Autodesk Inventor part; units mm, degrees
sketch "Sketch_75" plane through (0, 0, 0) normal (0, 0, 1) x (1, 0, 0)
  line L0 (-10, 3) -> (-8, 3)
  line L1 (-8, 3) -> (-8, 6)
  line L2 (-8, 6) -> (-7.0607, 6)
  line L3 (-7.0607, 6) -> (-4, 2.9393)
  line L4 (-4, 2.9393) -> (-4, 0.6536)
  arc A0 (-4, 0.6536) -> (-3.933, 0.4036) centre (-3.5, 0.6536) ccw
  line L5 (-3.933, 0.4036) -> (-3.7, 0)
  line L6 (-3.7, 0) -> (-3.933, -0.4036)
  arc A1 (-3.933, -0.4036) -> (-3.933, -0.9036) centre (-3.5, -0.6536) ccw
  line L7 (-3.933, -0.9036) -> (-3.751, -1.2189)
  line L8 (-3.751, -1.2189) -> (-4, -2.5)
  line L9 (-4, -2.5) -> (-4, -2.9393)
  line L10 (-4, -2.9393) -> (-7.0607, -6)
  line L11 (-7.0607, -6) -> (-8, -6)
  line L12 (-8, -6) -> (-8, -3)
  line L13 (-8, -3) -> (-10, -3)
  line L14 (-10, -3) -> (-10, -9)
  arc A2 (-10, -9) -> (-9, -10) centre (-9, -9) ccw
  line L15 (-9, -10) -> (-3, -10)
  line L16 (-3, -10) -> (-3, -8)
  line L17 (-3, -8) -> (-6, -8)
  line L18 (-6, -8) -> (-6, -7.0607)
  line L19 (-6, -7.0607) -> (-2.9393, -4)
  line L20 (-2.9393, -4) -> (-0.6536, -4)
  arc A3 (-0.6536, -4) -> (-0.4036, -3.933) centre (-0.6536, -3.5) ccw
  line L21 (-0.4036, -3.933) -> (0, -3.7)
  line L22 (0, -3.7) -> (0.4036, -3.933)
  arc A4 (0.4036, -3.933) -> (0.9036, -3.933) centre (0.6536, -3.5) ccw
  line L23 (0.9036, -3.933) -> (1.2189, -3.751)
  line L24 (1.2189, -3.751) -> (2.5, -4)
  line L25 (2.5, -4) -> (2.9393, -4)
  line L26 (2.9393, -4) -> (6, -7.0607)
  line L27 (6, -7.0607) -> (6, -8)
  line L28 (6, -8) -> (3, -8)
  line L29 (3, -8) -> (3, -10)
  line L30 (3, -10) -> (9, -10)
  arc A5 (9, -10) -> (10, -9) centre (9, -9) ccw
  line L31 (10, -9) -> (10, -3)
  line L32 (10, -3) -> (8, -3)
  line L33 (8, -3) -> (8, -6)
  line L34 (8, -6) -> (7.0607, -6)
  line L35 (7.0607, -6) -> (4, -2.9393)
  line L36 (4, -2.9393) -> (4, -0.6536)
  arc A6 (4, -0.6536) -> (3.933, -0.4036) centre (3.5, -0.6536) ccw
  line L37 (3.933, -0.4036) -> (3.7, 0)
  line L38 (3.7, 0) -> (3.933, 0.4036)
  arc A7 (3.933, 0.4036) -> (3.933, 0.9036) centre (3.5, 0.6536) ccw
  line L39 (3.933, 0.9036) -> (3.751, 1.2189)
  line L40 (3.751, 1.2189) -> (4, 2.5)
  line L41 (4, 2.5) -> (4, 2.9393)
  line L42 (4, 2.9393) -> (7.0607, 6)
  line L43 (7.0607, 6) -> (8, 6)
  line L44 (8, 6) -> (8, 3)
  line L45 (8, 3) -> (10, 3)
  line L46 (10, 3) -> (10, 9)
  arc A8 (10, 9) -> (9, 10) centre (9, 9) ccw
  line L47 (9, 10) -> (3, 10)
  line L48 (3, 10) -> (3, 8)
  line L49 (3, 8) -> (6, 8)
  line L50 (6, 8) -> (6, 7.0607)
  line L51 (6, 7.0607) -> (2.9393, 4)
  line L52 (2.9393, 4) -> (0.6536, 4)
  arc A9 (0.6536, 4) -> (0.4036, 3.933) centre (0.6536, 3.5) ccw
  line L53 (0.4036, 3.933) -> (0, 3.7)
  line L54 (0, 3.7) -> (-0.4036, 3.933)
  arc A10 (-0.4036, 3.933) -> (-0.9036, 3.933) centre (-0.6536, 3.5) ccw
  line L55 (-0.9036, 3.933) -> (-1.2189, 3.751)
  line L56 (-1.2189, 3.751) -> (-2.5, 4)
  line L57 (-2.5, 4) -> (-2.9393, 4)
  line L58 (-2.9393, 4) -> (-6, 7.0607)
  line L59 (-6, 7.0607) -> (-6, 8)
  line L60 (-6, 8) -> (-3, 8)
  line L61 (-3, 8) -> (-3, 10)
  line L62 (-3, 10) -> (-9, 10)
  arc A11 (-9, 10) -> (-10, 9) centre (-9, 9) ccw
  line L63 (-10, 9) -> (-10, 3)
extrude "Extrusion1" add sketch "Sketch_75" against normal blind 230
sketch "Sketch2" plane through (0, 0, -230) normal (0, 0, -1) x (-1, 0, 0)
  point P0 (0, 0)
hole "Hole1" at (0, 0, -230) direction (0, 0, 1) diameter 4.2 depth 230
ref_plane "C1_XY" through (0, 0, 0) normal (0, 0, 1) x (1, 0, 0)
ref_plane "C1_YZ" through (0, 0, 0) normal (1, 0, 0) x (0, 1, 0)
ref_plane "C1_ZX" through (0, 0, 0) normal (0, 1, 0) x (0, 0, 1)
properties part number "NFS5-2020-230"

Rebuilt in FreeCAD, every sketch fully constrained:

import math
import FreeCAD as App
import Part
import Sketcher
Q = App.Units.Quantity

doc = App.newDocument("Part")
params = doc.addObject("Spreadsheet::Sheet", "Params")
for row, (alias, value) in enumerate([
    ("sketch1_radius", "1 mm"),
    ("sketch1_radius2", "0.5 mm"),
    ("sketch1_width", "2 mm"),
    ("sketch1_width2", "6 mm"),
    ("sketch1_width3", "3 mm"),
    ("pad1_length", "230 mm"),
    ("sketch2_diameter", "4.2 mm"),
    ("hole_diameter", "4.2 mm"),
    ("hole_depth", "230 mm"),
], start=1):
    params.set(f"A{row}", alias)
    params.set(f"B{row}", "=" + value)
    params.setAlias(f"B{row}", alias)

body = doc.addObject("PartDesign::Body", "Body")

# Sketch on XY plane
sketch1 = doc.addObject("Sketcher::SketchObject", "Sketch")
body.addObject(sketch1)
sketch1.AttachmentSupport = (doc.XY_Plane, [""])
sketch1.MapMode = "FlatFace"
sketch1.addGeometry([
    Part.LineSegment(App.Vector(-10, 9, 0), App.Vector(-10, 3, 0)),  # 0
    Part.LineSegment(App.Vector(-10, 3, 0), App.Vector(-8, 3, 0)),  # 1
    Part.LineSegment(App.Vector(-8, 3, 0), App.Vector(-8, 6, 0)),  # 2
    Part.LineSegment(App.Vector(-8, 6, 0), App.Vector(-7.0607, 6, 0)),  # 3
    Part.LineSegment(App.Vector(-7.0607, 6, 0), App.Vector(-4, 2.9393, 0)),  # 4
    Part.LineSegment(App.Vector(-4, 2.9393, 0), App.Vector(-4, 0.6536, 0)),  # 5
    Part.ArcOfCircle(Part.Circle(App.Vector(-3.5, 0.6536, 0), App.Vector(0, 0, 1), 0.5), math.radians(180), math.radians(210.000728)),  # 6
    Part.LineSegment(App.Vector(-3.933, 0.4036, 0), App.Vector(-3.7, 0, 0)),  # 7
    Part.LineSegment(App.Vector(-3.7, 0, 0), App.Vector(-3.933, -0.4036, 0)),  # 8
    Part.ArcOfCircle(Part.Circle(App.Vector(-3.5, -0.6536, 0), App.Vector(0, 0, 1), 0.499989), math.radians(149.999272), math.radians(210.000728)),  # 9
    Part.LineSegment(App.Vector(-3.933, -0.9036, 0), App.Vector(-3.751, -1.2189, 0)),  # 10
    Part.LineSegment(App.Vector(-3.751, -1.2189, 0), App.Vector(-4, -2.5, 0)),  # 11
    Part.LineSegment(App.Vector(-4, -2.5, 0), App.Vector(-4, -2.9393, 0)),  # 12
    Part.LineSegment(App.Vector(-4, -2.9393, 0), App.Vector(-7.0607, -6, 0)),  # 13
    Part.LineSegment(App.Vector(-7.0607, -6, 0), App.Vector(-8, -6, 0)),  # 14
    Part.LineSegment(App.Vector(-8, -6, 0), App.Vector(-8, -3, 0)),  # 15
    Part.LineSegment(App.Vector(-8, -3, 0), App.Vector(-10, -3, 0)),  # 16
    Part.LineSegment(App.Vector(-10, -3, 0), App.Vector(-10, -9, 0)),  # 17
    Part.ArcOfCircle(Part.Circle(App.Vector(-9, -9, 0), App.Vector(0, 0, 1), 1), math.radians(180), math.radians(270)),  # 18
    Part.LineSegment(App.Vector(-9, -10, 0), App.Vector(-3, -10, 0)),  # 19
    Part.LineSegment(App.Vector(-3, -10, 0), App.Vector(-3, -8, 0)),  # 20
    Part.LineSegment(App.Vector(-3, -8, 0), App.Vector(-6, -8, 0)),  # 21
    Part.LineSegment(App.Vector(-6, -8, 0), App.Vector(-6, -7.0607, 0)),  # 22
    Part.LineSegment(App.Vector(-6, -7.0607, 0), App.Vector(-2.9393, -4, 0)),  # 23
    Part.LineSegment(App.Vector(-2.9393, -4, 0), App.Vector(-0.6536, -4, 0)),  # 24
    Part.ArcOfCircle(Part.Circle(App.Vector(-0.6536, -3.5, 0), App.Vector(0, 0, 1), 0.5), math.radians(-90), math.radians(-59.999272)),  # 25
    Part.LineSegment(App.Vector(-0.4036, -3.933, 0), App.Vector(0, -3.7, 0)),  # 26
    Part.LineSegment(App.Vector(0, -3.7, 0), App.Vector(0.4036, -3.933, 0)),  # 27
    Part.ArcOfCircle(Part.Circle(App.Vector(0.6536, -3.5, 0), App.Vector(0, 0, 1), 0.499989), math.radians(-120.000728), math.radians(-59.999272)),  # 28
    Part.LineSegment(App.Vector(0.9036, -3.933, 0), App.Vector(1.2189, -3.751, 0)),  # 29
    Part.LineSegment(App.Vector(1.2189, -3.751, 0), App.Vector(2.5, -4, 0)),  # 30
    Part.LineSegment(App.Vector(2.5, -4, 0), App.Vector(2.9393, -4, 0)),  # 31
    Part.LineSegment(App.Vector(2.9393, -4, 0), App.Vector(6, -7.0607, 0)),  # 32
    Part.LineSegment(App.Vector(6, -7.0607, 0), App.Vector(6, -8, 0)),  # 33
    Part.LineSegment(App.Vector(6, -8, 0), App.Vector(3, -8, 0)),  # 34
    Part.LineSegment(App.Vector(3, -8, 0), App.Vector(3, -10, 0)),  # 35
    Part.LineSegment(App.Vector(3, -10, 0), App.Vector(9, -10, 0)),  # 36
    Part.ArcOfCircle(Part.Circle(App.Vector(9, -9, 0), App.Vector(0, 0, 1), 1), math.radians(-90), math.radians(0)),  # 37
    Part.LineSegment(App.Vector(10, -9, 0), App.Vector(10, -3, 0)),  # 38
    Part.LineSegment(App.Vector(10, -3, 0), App.Vector(8, -3, 0)),  # 39
    Part.LineSegment(App.Vector(8, -3, 0), App.Vector(8, -6, 0)),  # 40
    Part.LineSegment(App.Vector(8, -6, 0), App.Vector(7.0607, -6, 0)),  # 41
    Part.LineSegment(App.Vector(7.0607, -6, 0), App.Vector(4, -2.9393, 0)),  # 42
    Part.LineSegment(App.Vector(4, -2.9393, 0), App.Vector(4, -0.6536, 0)),  # 43
    Part.ArcOfCircle(Part.Circle(App.Vector(3.5, -0.6536, 0), App.Vector(0, 0, 1), 0.5), math.radians(0), math.radians(30.000728)),  # 44
    Part.LineSegment(App.Vector(3.933, -0.4036, 0), App.Vector(3.7, 0, 0)),  # 45
    Part.LineSegment(App.Vector(3.7, 0, 0), App.Vector(3.933, 0.4036, 0)),  # 46
    Part.ArcOfCircle(Part.Circle(App.Vector(3.5, 0.6536, 0), App.Vector(0, 0, 1), 0.499989), math.radians(-30.000728), math.radians(30.000728)),  # 47
    Part.LineSegment(App.Vector(3.933, 0.9036, 0), App.Vector(3.751, 1.2189, 0)),  # 48
    Part.LineSegment(App.Vector(3.751, 1.2189, 0), App.Vector(4, 2.5, 0)),  # 49
    Part.LineSegment(App.Vector(4, 2.5, 0), App.Vector(4, 2.9393, 0)),  # 50
    Part.LineSegment(App.Vector(4, 2.9393, 0), App.Vector(7.0607, 6, 0)),  # 51
    Part.LineSegment(App.Vector(7.0607, 6, 0), App.Vector(8, 6, 0)),  # 52
    Part.LineSegment(App.Vector(8, 6, 0), App.Vector(8, 3, 0)),  # 53
    Part.LineSegment(App.Vector(8, 3, 0), App.Vector(10, 3, 0)),  # 54
    Part.LineSegment(App.Vector(10, 3, 0), App.Vector(10, 9, 0)),  # 55
    Part.ArcOfCircle(Part.Circle(App.Vector(9, 9, 0), App.Vector(0, 0, 1), 1), math.radians(0), math.radians(90)),  # 56
    Part.LineSegment(App.Vector(9, 10, 0), App.Vector(3, 10, 0)),  # 57
    Part.LineSegment(App.Vector(3, 10, 0), App.Vector(3, 8, 0)),  # 58
    Part.LineSegment(App.Vector(3, 8, 0), App.Vector(6, 8, 0)),  # 59
    Part.LineSegment(App.Vector(6, 8, 0), App.Vector(6, 7.0607, 0)),  # 60
    Part.LineSegment(App.Vector(6, 7.0607, 0), App.Vector(2.9393, 4, 0)),  # 61
    Part.LineSegment(App.Vector(2.9393, 4, 0), App.Vector(0.6536, 4, 0)),  # 62
    Part.ArcOfCircle(Part.Circle(App.Vector(0.6536, 3.5, 0), App.Vector(0, 0, 1), 0.5), math.radians(90), math.radians(120.000728)),  # 63
    Part.LineSegment(App.Vector(0.4036, 3.933, 0), App.Vector(0, 3.7, 0)),  # 64
    Part.LineSegment(App.Vector(0, 3.7, 0), App.Vector(-0.4036, 3.933, 0)),  # 65
    Part.ArcOfCircle(Part.Circle(App.Vector(-0.6536, 3.5, 0), App.Vector(0, 0, 1), 0.499989), math.radians(59.999272), math.radians(120.000728)),  # 66
    Part.LineSegment(App.Vector(-0.9036, 3.933, 0), App.Vector(-1.2189, 3.751, 0)),  # 67
    Part.LineSegment(App.Vector(-1.2189, 3.751, 0), App.Vector(-2.5, 4, 0)),  # 68
    Part.LineSegment(App.Vector(-2.5, 4, 0), App.Vector(-2.9393, 4, 0)),  # 69
    Part.LineSegment(App.Vector(-2.9393, 4, 0), App.Vector(-6, 7.0607, 0)),  # 70
    Part.LineSegment(App.Vector(-6, 7.0607, 0), App.Vector(-6, 8, 0)),  # 71
    Part.LineSegment(App.Vector(-6, 8, 0), App.Vector(-3, 8, 0)),  # 72
    Part.LineSegment(App.Vector(-3, 8, 0), App.Vector(-3, 10, 0)),  # 73
    Part.LineSegment(App.Vector(-3, 10, 0), App.Vector(-9, 10, 0)),  # 74
    Part.ArcOfCircle(Part.Circle(App.Vector(-9, 9, 0), App.Vector(0, 0, 1), 1), math.radians(90), math.radians(180)),  # 75
], False)
sketch1.addConstraint([
    Sketcher.Constraint("Coincident", 0, 2, 1, 1),
    Sketcher.Constraint("Coincident", 1, 2, 2, 1),
    Sketcher.Constraint("Coincident", 2, 2, 3, 1),
    Sketcher.Constraint("Coincident", 3, 2, 4, 1),
    Sketcher.Constraint("Coincident", 4, 2, 5, 1),
    Sketcher.Constraint("Tangent", 5, 2, 6, 1),
    Sketcher.Constraint("Tangent", 6, 2, 7, 1),
    Sketcher.Constraint("Coincident", 7, 2, 8, 1),
    Sketcher.Constraint("Tangent", 8, 2, 9, 1),
    Sketcher.Constraint("Tangent", 9, 2, 10, 1),
    Sketcher.Constraint("Coincident", 10, 2, 11, 1),
    Sketcher.Constraint("Coincident", 11, 2, 12, 1),
    Sketcher.Constraint("Coincident", 12, 2, 13, 1),
    Sketcher.Constraint("Coincident", 13, 2, 14, 1),
    Sketcher.Constraint("Coincident", 14, 2, 15, 1),
    Sketcher.Constraint("Coincident", 15, 2, 16, 1),
    Sketcher.Constraint("Coincident", 16, 2, 17, 1),
    Sketcher.Constraint("Tangent", 17, 2, 18, 1),
    Sketcher.Constraint("Tangent", 18, 2, 19, 1),
    Sketcher.Constraint("Coincident", 19, 2, 20, 1),
    Sketcher.Constraint("Coincident", 20, 2, 21, 1),
    Sketcher.Constraint("Coincident", 21, 2, 22, 1),
    Sketcher.Constraint("Coincident", 22, 2, 23, 1),
    Sketcher.Constraint("Coincident", 23, 2, 24, 1),
    Sketcher.Constraint("Tangent", 24, 2, 25, 1),
    Sketcher.Constraint("Tangent", 25, 2, 26, 1),
    Sketcher.Constraint("Coincident", 26, 2, 27, 1),
    Sketcher.Constraint("Tangent", 27, 2, 28, 1),
    Sketcher.Constraint("Tangent", 28, 2, 29, 1),
    Sketcher.Constraint("Coincident", 29, 2, 30, 1),
    Sketcher.Constraint("Coincident", 30, 2, 31, 1),
    Sketcher.Constraint("Coincident", 31, 2, 32, 1),
    Sketcher.Constraint("Coincident", 32, 2, 33, 1),
    Sketcher.Constraint("Coincident", 33, 2, 34, 1),
    Sketcher.Constraint("Coincident", 34, 2, 35, 1),
    Sketcher.Constraint("Coincident", 35, 2, 36, 1),
    Sketcher.Constraint("Tangent", 36, 2, 37, 1),
    Sketcher.Constraint("Tangent", 37, 2, 38, 1),
    Sketcher.Constraint("Coincident", 38, 2, 39, 1),
    Sketcher.Constraint("Coincident", 39, 2, 40, 1),
    Sketcher.Constraint("Coincident", 40, 2, 41, 1),
    Sketcher.Constraint("Coincident", 41, 2, 42, 1),
    Sketcher.Constraint("Coincident", 42, 2, 43, 1),
    Sketcher.Constraint("Tangent", 43, 2, 44, 1),
    Sketcher.Constraint("Tangent", 44, 2, 45, 1),
    Sketcher.Constraint("Coincident", 45, 2, 46, 1),
    Sketcher.Constraint("Tangent", 46, 2, 47, 1),
    Sketcher.Constraint("Tangent", 47, 2, 48, 1),
    Sketcher.Constraint("Coincident", 48, 2, 49, 1),
    Sketcher.Constraint("Coincident", 49, 2, 50, 1),
    Sketcher.Constraint("Coincident", 50, 2, 51, 1),
    Sketcher.Constraint("Coincident", 51, 2, 52, 1),
    Sketcher.Constraint("Coincident", 52, 2, 53, 1),
    Sketcher.Constraint("Coincident", 53, 2, 54, 1),
    Sketcher.Constraint("Coincident", 54, 2, 55, 1),
    Sketcher.Constraint("Tangent", 55, 2, 56, 1),
    Sketcher.Constraint("Tangent", 56, 2, 57, 1),
    Sketcher.Constraint("Coincident", 57, 2, 58, 1),
    Sketcher.Constraint("Coincident", 58, 2, 59, 1),
    Sketcher.Constraint("Coincident", 59, 2, 60, 1),
    Sketcher.Constraint("Coincident", 60, 2, 61, 1),
    Sketcher.Constraint("Coincident", 61, 2, 62, 1),
    Sketcher.Constraint("Tangent", 62, 2, 63, 1),
    Sketcher.Constraint("Tangent", 63, 2, 64, 1),
    Sketcher.Constraint("Coincident", 64, 2, 65, 1),
    Sketcher.Constraint("Tangent", 65, 2, 66, 1),
    Sketcher.Constraint("Tangent", 66, 2, 67, 1),
    Sketcher.Constraint("Coincident", 67, 2, 68, 1),
    Sketcher.Constraint("Coincident", 68, 2, 69, 1),
    Sketcher.Constraint("Coincident", 69, 2, 70, 1),
    Sketcher.Constraint("Coincident", 70, 2, 71, 1),
    Sketcher.Constraint("Coincident", 71, 2, 72, 1),
    Sketcher.Constraint("Coincident", 72, 2, 73, 1),
    Sketcher.Constraint("Coincident", 73, 2, 74, 1),
    Sketcher.Constraint("Tangent", 74, 2, 75, 1),
    Sketcher.Constraint("Tangent", 75, 2, 0, 1),
    Sketcher.Constraint("Vertical", 0),
    Sketcher.Constraint("Horizontal", 1),
    Sketcher.Constraint("Vertical", 2),
    Sketcher.Constraint("Horizontal", 3),
    Sketcher.Constraint("Vertical", 5),
    Sketcher.Constraint("Vertical", 12),
    Sketcher.Constraint("Horizontal", 14),
    Sketcher.Constraint("Vertical", 15),
    Sketcher.Constraint("Horizontal", 16),
    Sketcher.Constraint("Vertical", 17),
    Sketcher.Constraint("Horizontal", 19),
    Sketcher.Constraint("Vertical", 20),
    Sketcher.Constraint("Horizontal", 21),
    Sketcher.Constraint("Vertical", 22),
    Sketcher.Constraint("Horizontal", 24),
    Sketcher.Constraint("Horizontal", 31),
    Sketcher.Constraint("Vertical", 33),
    Sketcher.Constraint("Horizontal", 34),
    Sketcher.Constraint("Vertical", 35),
    Sketcher.Constraint("Horizontal", 36),
    Sketcher.Constraint("Vertical", 38),
    Sketcher.Constraint("Horizontal", 39),
    Sketcher.Constraint("Vertical", 40),
    Sketcher.Constraint("Horizontal", 41),
    Sketcher.Constraint("Vertical", 43),
    Sketcher.Constraint("Vertical", 50),
    Sketcher.Constraint("Horizontal", 52),
    Sketcher.Constraint("Vertical", 53),
    Sketcher.Constraint("Horizontal", 54),
    Sketcher.Constraint("Vertical", 55),
    Sketcher.Constraint("Horizontal", 57),
    Sketcher.Constraint("Vertical", 58),
    Sketcher.Constraint("Horizontal", 59),
    Sketcher.Constraint("Vertical", 60),
    Sketcher.Constraint("Horizontal", 62),
    Sketcher.Constraint("Horizontal", 69),
    Sketcher.Constraint("Vertical", 71),
    Sketcher.Constraint("Horizontal", 72),
    Sketcher.Constraint("Vertical", 73),
    Sketcher.Constraint("Horizontal", 74),
    Sketcher.Constraint("Equal", 6, 9),
    Sketcher.Constraint("Equal", 9, 25),
    Sketcher.Constraint("Equal", 25, 28),
    Sketcher.Constraint("Equal", 18, 37),
    Sketcher.Constraint("Equal", 28, 44),
    Sketcher.Constraint("Equal", 44, 47),
    Sketcher.Constraint("Equal", 37, 56),
    Sketcher.Constraint("Equal", 47, 63),
    Sketcher.Constraint("Equal", 63, 66),
    Sketcher.Constraint("Equal", 56, 75),
    Sketcher.Constraint("Symmetric", 6, 3, 44, 3, -1, 1),
    Sketcher.Constraint("Symmetric", 9, 3, 47, 3, -1, 1),
    Sketcher.Constraint("Symmetric", 18, 3, 56, 3, -1, 1),
    Sketcher.Constraint("Symmetric", 25, 3, 63, 3, -1, 1),
    Sketcher.Constraint("Symmetric", 28, 3, 66, 3, -1, 1),
    Sketcher.Constraint("Symmetric", 37, 3, 75, 3, -1, 1),
    Sketcher.Constraint("Symmetric", 1, 2, 39, 2, -1, 1),
    Sketcher.Constraint("Symmetric", 3, 2, 41, 2, -1, 1),
    Sketcher.Constraint("Symmetric", 7, 2, 45, 2, -1, 1),
    Sketcher.Constraint("Symmetric", 10, 2, 48, 2, -1, 1),
    Sketcher.Constraint("Symmetric", 11, 2, 49, 2, -1, 1),
    Sketcher.Constraint("Symmetric", 13, 2, 51, 2, -1, 1),
    Sketcher.Constraint("Symmetric", 15, 2, 53, 2, -1, 1),
    Sketcher.Constraint("Symmetric", 20, 2, 58, 2, -1, 1),
    Sketcher.Constraint("Symmetric", 22, 2, 60, 2, -1, 1),
    Sketcher.Constraint("Symmetric", 26, 2, 64, 2, -1, 1),
    Sketcher.Constraint("Symmetric", 29, 2, 67, 2, -1, 1),
    Sketcher.Constraint("Symmetric", 30, 2, 68, 2, -1, 1),
    Sketcher.Constraint("Symmetric", 32, 2, 70, 2, -1, 1),
    Sketcher.Constraint("Symmetric", 34, 2, 72, 2, -1, 1),
    Sketcher.Constraint("Symmetric", 25, 3, 28, 3, -2),
    Sketcher.Constraint("Symmetric", 18, 3, 37, 3, -2),
    Sketcher.Constraint("Symmetric", 9, 3, 44, 3, -2),
    Sketcher.Constraint("Symmetric", 23, 2, 31, 2, -2),
    Sketcher.Constraint("Symmetric", 22, 2, 32, 2, -2),
    Sketcher.Constraint("Symmetric", 20, 2, 34, 2, -2),
    Sketcher.Constraint("Symmetric", 15, 2, 39, 2, -2),
    Sketcher.Constraint("Symmetric", 13, 2, 41, 2, -2),
    Sketcher.Constraint("Symmetric", 12, 2, 42, 2, -2),
    Sketcher.Constraint("PointOnObject", 7, 2, -1),
    Sketcher.Constraint("PointOnObject", 26, 2, -2),
    Sketcher.Constraint("Parallel", 7, 10),
    Sketcher.Constraint("Perpendicular", 4, 13),
    Sketcher.Constraint("Parallel", 13, 23),
    Sketcher.Constraint("Perpendicular", 10, 26),
    Sketcher.Constraint("Parallel", 26, 29),
    Sketcher.Constraint("Perpendicular", 11, 30),
    Sketcher.Constraint("Perpendicular", 23, 32),
    Sketcher.Constraint("Perpendicular", 42, 51),
    Sketcher.Constraint("Parallel", 51, 61),
    Sketcher.Constraint("Perpendicular", 61, 70),
    Sketcher.Constraint("Equal", 74, 0),
    Sketcher.Constraint("Equal", 72, 2),
    Sketcher.Constraint("Equal", 62, 5),
    Sketcher.Constraint("Equal", 69, 12),
    Sketcher.Constraint("Equal", 54, 20),
    Sketcher.Constraint("Equal", 52, 22),
    Sketcher.Constraint("Equal", 13, 23),
    Sketcher.Constraint("Equal", 8, 26),
    Sketcher.Constraint("Radius", 18, 1.0),
    Sketcher.Constraint("Radius", 6, 0.5),
    Sketcher.Constraint("DistanceX", 1, 1, 1, 2, 2.0),
    Sketcher.Constraint("DistanceX", 19, 1, 19, 2, 6.0),
    Sketcher.Constraint("DistanceX", 21, 2, 21, 1, 3.0),
    Sketcher.Constraint("Angle", 11, Q("-100.999 deg")),
    Sketcher.Constraint("DistanceX", 18, 3, -1, 1, 9.0),
    Sketcher.Constraint("DistanceX", 4, 2, -1, 1, 4.0),
    Sketcher.Constraint("DistanceX", 7, 2, -1, 1, 3.7),
    Sketcher.Constraint("DistanceY", 11, 2, -1, 1, 2.5),
    Sketcher.Constraint("Distance", 7, 0.466),
    Sketcher.Constraint("DistanceX", 3, 1, 3, 2, 0.9393),
])
sketch1.setExpression("Constraints[175]", "Params.sketch1_radius")
sketch1.setExpression("Constraints[176]", "Params.sketch1_radius2")
sketch1.setExpression("Constraints[177]", "Params.sketch1_width")
sketch1.setExpression("Constraints[178]", "Params.sketch1_width2")
sketch1.setExpression("Constraints[179]", "Params.sketch1_width3")
pad1 = doc.addObject("PartDesign::Pad", "Pad")
body.addObject(pad1)
pad1.Profile = sketch1
pad1.setExpression("Length", "Params.pad1_length")
pad1.Reversed = True

# Sketch on XY plane
sketch2 = doc.addObject("Sketcher::SketchObject", "Sketch001")
body.addObject(sketch2)
sketch2.AttachmentSupport = (doc.XY_Plane, [""])
sketch2.MapMode = "FlatFace"
sketch2.AttachmentOffset = App.Placement(App.Vector(0, 0, -230), App.Rotation())
sketch2.addGeometry(Part.Circle(App.Vector(0, 0, 0), App.Vector(0, 0, 1), 2.1), False)
sketch2.addConstraint([
    Sketcher.Constraint("Coincident", 0, 3, -1, 1),
    Sketcher.Constraint("Diameter", 0, 4.2),
])
sketch2.setExpression("Constraints[1]", "Params.sketch2_diameter")
doc.recompute()
hole = doc.addObject("PartDesign::Hole", "Hole")
body.addObject(hole)
hole.Profile = sketch2
hole.ThreadType = "None"
hole.setExpression("Diameter", "Params.hole_diameter")
hole.DepthType = "Dimension"
hole.setExpression("Depth", "Params.hole_depth")
hole.DrillPoint = "Flat"
hole.Reversed = True

doc.recompute()
